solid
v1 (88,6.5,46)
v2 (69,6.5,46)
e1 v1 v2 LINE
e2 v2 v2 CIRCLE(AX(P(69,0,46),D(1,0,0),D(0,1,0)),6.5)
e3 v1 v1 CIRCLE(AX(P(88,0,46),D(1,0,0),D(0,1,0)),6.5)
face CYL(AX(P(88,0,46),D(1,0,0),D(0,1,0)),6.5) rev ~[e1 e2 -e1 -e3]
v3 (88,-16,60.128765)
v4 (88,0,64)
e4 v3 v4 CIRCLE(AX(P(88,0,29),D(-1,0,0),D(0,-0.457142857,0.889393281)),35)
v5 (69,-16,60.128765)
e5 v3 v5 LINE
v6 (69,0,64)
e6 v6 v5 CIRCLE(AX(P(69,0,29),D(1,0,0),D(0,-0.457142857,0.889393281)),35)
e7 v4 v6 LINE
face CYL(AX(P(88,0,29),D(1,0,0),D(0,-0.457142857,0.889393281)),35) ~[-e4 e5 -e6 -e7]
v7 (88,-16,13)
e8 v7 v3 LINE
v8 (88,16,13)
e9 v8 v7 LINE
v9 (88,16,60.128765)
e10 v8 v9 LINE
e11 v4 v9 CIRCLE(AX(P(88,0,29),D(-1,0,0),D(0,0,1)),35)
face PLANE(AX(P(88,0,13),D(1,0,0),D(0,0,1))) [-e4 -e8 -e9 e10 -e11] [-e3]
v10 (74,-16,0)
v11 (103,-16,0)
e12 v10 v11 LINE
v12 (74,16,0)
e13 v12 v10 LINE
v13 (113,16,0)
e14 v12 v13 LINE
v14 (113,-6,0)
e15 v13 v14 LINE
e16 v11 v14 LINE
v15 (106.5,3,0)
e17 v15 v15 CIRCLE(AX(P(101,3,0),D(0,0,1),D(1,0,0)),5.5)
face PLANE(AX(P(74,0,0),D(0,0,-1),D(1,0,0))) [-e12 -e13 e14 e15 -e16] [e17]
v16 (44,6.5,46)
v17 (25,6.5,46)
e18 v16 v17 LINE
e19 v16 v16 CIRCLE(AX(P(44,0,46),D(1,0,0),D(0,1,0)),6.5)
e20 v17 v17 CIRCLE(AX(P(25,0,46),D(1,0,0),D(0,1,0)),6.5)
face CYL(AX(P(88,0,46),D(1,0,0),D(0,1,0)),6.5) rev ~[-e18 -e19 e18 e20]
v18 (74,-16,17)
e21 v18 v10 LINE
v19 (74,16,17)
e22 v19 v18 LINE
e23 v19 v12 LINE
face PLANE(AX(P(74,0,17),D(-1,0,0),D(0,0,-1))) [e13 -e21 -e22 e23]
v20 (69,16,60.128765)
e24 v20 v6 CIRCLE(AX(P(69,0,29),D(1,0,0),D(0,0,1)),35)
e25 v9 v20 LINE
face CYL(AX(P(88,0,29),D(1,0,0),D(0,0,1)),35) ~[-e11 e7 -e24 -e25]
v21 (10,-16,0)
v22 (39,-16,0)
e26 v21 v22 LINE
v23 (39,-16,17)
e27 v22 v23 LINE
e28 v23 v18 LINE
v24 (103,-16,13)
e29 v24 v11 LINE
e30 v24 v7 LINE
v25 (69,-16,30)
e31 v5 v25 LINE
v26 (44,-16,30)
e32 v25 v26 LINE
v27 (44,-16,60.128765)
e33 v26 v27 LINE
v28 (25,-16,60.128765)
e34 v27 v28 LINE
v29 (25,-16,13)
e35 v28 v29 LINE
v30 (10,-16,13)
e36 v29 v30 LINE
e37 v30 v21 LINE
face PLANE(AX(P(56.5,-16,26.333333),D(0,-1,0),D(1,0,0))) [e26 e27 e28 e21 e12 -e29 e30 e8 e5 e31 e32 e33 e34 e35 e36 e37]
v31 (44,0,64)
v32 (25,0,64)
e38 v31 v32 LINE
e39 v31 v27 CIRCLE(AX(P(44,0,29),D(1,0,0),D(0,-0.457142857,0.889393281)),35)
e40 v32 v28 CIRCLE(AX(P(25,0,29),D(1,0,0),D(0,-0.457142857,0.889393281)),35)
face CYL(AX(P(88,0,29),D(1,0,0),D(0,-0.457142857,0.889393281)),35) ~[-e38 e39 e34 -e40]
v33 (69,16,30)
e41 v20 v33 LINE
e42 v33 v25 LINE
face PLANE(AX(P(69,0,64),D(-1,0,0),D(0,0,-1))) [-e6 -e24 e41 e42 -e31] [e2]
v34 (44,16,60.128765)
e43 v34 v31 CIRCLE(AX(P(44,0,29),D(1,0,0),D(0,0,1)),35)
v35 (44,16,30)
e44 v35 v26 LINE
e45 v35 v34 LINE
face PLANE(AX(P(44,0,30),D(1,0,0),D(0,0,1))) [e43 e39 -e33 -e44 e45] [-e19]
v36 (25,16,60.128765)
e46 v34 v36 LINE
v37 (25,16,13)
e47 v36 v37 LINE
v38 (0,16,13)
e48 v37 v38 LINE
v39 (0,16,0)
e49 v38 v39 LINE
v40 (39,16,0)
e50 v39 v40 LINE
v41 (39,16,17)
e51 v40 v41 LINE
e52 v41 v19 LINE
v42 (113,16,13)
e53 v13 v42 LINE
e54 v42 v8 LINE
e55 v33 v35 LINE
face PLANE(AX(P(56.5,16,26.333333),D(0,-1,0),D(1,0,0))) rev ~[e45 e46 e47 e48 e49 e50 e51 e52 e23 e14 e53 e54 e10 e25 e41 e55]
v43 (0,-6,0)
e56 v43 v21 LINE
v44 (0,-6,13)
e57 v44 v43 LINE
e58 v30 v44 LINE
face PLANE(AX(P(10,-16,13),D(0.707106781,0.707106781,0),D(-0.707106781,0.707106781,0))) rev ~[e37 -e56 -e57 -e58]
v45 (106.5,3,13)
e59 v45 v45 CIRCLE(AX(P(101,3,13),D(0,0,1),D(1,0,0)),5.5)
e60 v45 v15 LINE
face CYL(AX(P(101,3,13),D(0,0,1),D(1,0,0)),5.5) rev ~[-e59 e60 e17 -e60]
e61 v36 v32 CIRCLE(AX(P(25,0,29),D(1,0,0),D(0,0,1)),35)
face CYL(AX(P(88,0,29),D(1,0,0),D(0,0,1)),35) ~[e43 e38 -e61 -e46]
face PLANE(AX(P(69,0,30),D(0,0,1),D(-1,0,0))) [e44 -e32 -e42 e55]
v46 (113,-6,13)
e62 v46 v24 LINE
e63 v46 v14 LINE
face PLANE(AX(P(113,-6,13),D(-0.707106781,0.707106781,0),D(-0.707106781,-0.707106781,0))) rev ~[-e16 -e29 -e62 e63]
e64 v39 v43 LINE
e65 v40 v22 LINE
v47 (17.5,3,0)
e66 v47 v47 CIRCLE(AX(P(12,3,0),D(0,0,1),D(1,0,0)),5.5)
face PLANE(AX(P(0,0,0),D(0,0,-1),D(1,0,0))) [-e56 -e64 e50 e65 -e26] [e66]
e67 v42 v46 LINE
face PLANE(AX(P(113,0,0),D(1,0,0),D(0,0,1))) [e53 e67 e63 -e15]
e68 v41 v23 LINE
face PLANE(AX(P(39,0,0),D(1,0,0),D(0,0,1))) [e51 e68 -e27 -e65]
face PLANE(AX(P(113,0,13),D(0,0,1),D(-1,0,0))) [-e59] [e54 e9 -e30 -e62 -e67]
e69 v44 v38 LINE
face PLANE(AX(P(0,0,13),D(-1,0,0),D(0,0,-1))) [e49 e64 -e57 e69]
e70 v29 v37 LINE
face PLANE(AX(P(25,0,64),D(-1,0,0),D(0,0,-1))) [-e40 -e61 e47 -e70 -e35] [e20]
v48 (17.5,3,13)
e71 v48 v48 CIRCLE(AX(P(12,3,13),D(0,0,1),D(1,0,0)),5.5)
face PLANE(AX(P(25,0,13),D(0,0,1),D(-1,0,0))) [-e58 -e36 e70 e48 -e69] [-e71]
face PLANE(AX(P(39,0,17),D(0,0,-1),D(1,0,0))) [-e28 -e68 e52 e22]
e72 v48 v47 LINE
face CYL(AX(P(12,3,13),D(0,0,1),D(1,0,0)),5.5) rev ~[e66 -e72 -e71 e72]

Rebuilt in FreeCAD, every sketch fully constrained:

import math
import FreeCAD as App
import Part
import Sketcher
Q = App.Units.Quantity


def add_polygon(sketch, points):
    """Adds a closed chain of lines whose ends are joined by coincident constraints."""
    first, n = sketch.GeometryCount, len(points)
    for a, b in zip(points, points[1:] + points[:1]):
        sketch.addGeometry(Part.LineSegment(App.Vector(*a, 0), App.Vector(*b, 0)), False)
    for i in range(n):
        sketch.addConstraint(Sketcher.Constraint("Coincident", first + i, 2, first + (i + 1) % n, 1))

doc = App.newDocument("Part")
body = doc.addObject("PartDesign::Body", "Body")

# Sketch on XZ plane
sketch1 = body.newObject("Sketcher::SketchObject", "Sketch")
sketch1.AttachmentSupport = (doc.getObject("XZ_Plane"), [""])
sketch1.MapMode = "FlatFace"
add_polygon(sketch1, [(0, 13), (0, 0), (39, 0), (39, 17), (74, 17), (74, 0), (113, 0), (113, 13), (88, 13), (88, 64), (69, 64), (69, 30), (44, 30), (44, 64), (25, 64), (25, 13)])  # lines 0-15
sketch1.addConstraint(Sketcher.Constraint("Vertical", 0))
sketch1.addConstraint(Sketcher.Constraint("Horizontal", 1))
sketch1.addConstraint(Sketcher.Constraint("Vertical", 2))
sketch1.addConstraint(Sketcher.Constraint("Horizontal", 3))
sketch1.addConstraint(Sketcher.Constraint("Vertical", 4))
sketch1.addConstraint(Sketcher.Constraint("Horizontal", 5))
sketch1.addConstraint(Sketcher.Constraint("Vertical", 6))
sketch1.addConstraint(Sketcher.Constraint("Horizontal", 7))
sketch1.addConstraint(Sketcher.Constraint("Vertical", 8))
sketch1.addConstraint(Sketcher.Constraint("Horizontal", 9))
sketch1.addConstraint(Sketcher.Constraint("Vertical", 10))
sketch1.addConstraint(Sketcher.Constraint("Horizontal", 11))
sketch1.addConstraint(Sketcher.Constraint("Vertical", 12))
sketch1.addConstraint(Sketcher.Constraint("Horizontal", 13))
sketch1.addConstraint(Sketcher.Constraint("Vertical", 14))
sketch1.addConstraint(Sketcher.Constraint("Horizontal", 15))
sketch1.addConstraint(Sketcher.Constraint("Coincident", 0, 2, -1, 1))
sketch1.addConstraint(Sketcher.Constraint("PointOnObject", 4, 2, -1))
sketch1.addConstraint(Sketcher.Constraint("Horizontal", 9, 2, 12, 2))
sketch1.addConstraint(Sketcher.Constraint("Horizontal", 7, 2, 14, 2))
sketch1.addConstraint(Sketcher.Constraint("Equal", 1, 5))
sketch1.addConstraint(Sketcher.Constraint("Equal", 7, 11))
sketch1.addConstraint(Sketcher.Constraint("Equal", 9, 13))
sketch1.addConstraint(Sketcher.Constraint("Equal", 11, 15))
sketch1.addConstraint(Sketcher.Constraint("DistanceX", 1, 1, 1, 2, Q("39 mm")))
sketch1.addConstraint(Sketcher.Constraint("DistanceX", 3, 1, 3, 2, Q("35 mm")))
sketch1.addConstraint(Sketcher.Constraint("DistanceX", 7, 2, 7, 1, Q("25 mm")))
sketch1.addConstraint(Sketcher.Constraint("DistanceY", 0, 2, 0, 1, Q("13 mm")))
sketch1.addConstraint(Sketcher.Constraint("DistanceY", 2, 1, 2, 2, Q("17 mm")))
sketch1.addConstraint(Sketcher.Constraint("DistanceY", 8, 1, 8, 2, Q("51 mm")))
sketch1.addConstraint(Sketcher.Constraint("DistanceY", 10, 2, 10, 1, Q("34 mm")))
pad1 = body.newObject("PartDesign::Pad", "Pad")
pad1.Profile = sketch1
pad1.Length = 32
pad1.Midplane = True

# Sketch on XY plane
sketch2 = body.newObject("Sketcher::SketchObject", "Sketch001")
sketch2.AttachmentSupport = (doc.getObject("XY_Plane"), [""])
sketch2.MapMode = "FlatFace"
sketch2.AttachmentOffset = App.Placement(App.Vector(0, 0, 13), App.Rotation())
add_polygon(sketch2, [(103, -16), (113, -16), (113, -6)])  # lines 0-2
sketch2.addConstraint(Sketcher.Constraint("Horizontal", 0))
sketch2.addConstraint(Sketcher.Constraint("Vertical", 1))
sketch2.addConstraint(Sketcher.Constraint("Equal", 0, 1))
sketch2.addConstraint(Sketcher.Constraint("DistanceX", 0, 1, 0, 2, Q("10 mm")))
sketch2.addConstraint(Sketcher.Constraint("DistanceX", -1, 1, 0, 2, Q("113 mm")))
sketch2.addConstraint(Sketcher.Constraint("DistanceY", 0, 2, -1, 1, Q("16 mm")))
pocket1 = body.newObject("PartDesign::Pocket", "Pocket")
pocket1.Profile = sketch2
pocket1.Length = 25

# Sketch on XY plane
sketch3 = body.newObject("Sketcher::SketchObject", "Sketch002")
sketch3.AttachmentSupport = (doc.getObject("XY_Plane"), [""])
sketch3.MapMode = "FlatFace"
sketch3.AttachmentOffset = App.Placement(App.Vector(0, 0, 13), App.Rotation())
add_polygon(sketch3, [(10, -16), (0, -6), (0, -16)])  # lines 0-2
sketch3.addConstraint(Sketcher.Constraint("Vertical", 1))
sketch3.addConstraint(Sketcher.Constraint("Horizontal", 2))
sketch3.addConstraint(Sketcher.Constraint("PointOnObject", 0, 2, -2))
sketch3.addConstraint(Sketcher.Constraint("Equal", 2, 1))
sketch3.addConstraint(Sketcher.Constraint("DistanceX", 2, 1, 2, 2, Q("10 mm")))
sketch3.addConstraint(Sketcher.Constraint("DistanceY", 0, 2, -1, 1, Q("6 mm")))
pocket2 = body.newObject("PartDesign::Pocket", "Pocket001")
pocket2.Profile = sketch3
pocket2.Length = 25

# Sketch on YZ plane
sketch4 = body.newObject("Sketcher::SketchObject", "Sketch003")
sketch4.AttachmentSupport = (doc.getObject("YZ_Plane"), [""])
sketch4.MapMode = "FlatFace"
sketch4.AttachmentOffset = App.Placement(App.Vector(0, 0, 88), App.Rotation())
sketch4.addGeometry(Part.Circle(App.Vector(0, 46, 0), App.Vector(0, 0, 1), 6.5), False)
sketch4.addConstraint(Sketcher.Constraint("PointOnObject", 0, 3, -2))
sketch4.addConstraint(Sketcher.Constraint("Diameter", 0, Q("13 mm")))
sketch4.addConstraint(Sketcher.Constraint("DistanceY", -1, 1, 0, 3, Q("46 mm")))
pocket3 = body.newObject("PartDesign::Pocket", "Pocket002")
pocket3.Profile = sketch4
pocket3.Type = "ThroughAll"

# Sketch on YZ plane
sketch5 = body.newObject("Sketcher::SketchObject", "Sketch004")
sketch5.AttachmentSupport = (doc.getObject("YZ_Plane"), [""])
sketch5.MapMode = "FlatFace"
sketch5.AttachmentOffset = App.Placement(App.Vector(0, 0, 88), App.Rotation())
sketch5.addGeometry(Part.ArcOfCircle(Part.Circle(App.Vector(0, 29, 0), App.Vector(0, 0, 1), 35), math.radians(90), math.radians(117.202894)), False)
sketch5.addGeometry(Part.LineSegment(App.Vector(0, 64, 0), App.Vector(-16, 64, 0)), False)
sketch5.addGeometry(Part.LineSegment(App.Vector(-16, 64, 0), App.Vector(-16, 60.128765, 0)), False)
sketch5.addGeometry(Part.ArcOfCircle(Part.Circle(App.Vector(0, 29, 0), App.Vector(0, 0, 1), 35), math.radians(62.797106), math.radians(90)), False)
sketch5.addGeometry(Part.LineSegment(App.Vector(16, 60.128765, 0), App.Vector(16, 64, 0)), False)
sketch5.addGeometry(Part.LineSegment(App.Vector(16, 64, 0), App.Vector(0, 64, 0)), False)
sketch5.addConstraint(Sketcher.Constraint("Tangent", 0, 1, 1, 1))
sketch5.addConstraint(Sketcher.Constraint("Coincident", 1, 2, 2, 1))
sketch5.addConstraint(Sketcher.Constraint("Coincident", 2, 2, 0, 2))
sketch5.addConstraint(Sketcher.Constraint("Coincident", 3, 1, 4, 1))
sketch5.addConstraint(Sketcher.Constraint("Coincident", 4, 2, 5, 1))
sketch5.addConstraint(Sketcher.Constraint("Tangent", 5, 2, 3, 2))
sketch5.addConstraint(Sketcher.Constraint("Horizontal", 1))
sketch5.addConstraint(Sketcher.Constraint("Vertical", 2))
sketch5.addConstraint(Sketcher.Constraint("Vertical", 4))
sketch5.addConstraint(Sketcher.Constraint("Horizontal", 5))
sketch5.addConstraint(Sketcher.Constraint("Coincident", 3, 3, 0, 3))
sketch5.addConstraint(Sketcher.Constraint("Equal", 0, 3))
sketch5.addConstraint(Sketcher.Constraint("Symmetric", 2, 2, 3, 1, -2))
sketch5.addConstraint(Sketcher.Constraint("Radius", 0, Q("35 mm")))
sketch5.addConstraint(Sketcher.Constraint("DistanceX", 1, 2, 1, 1, Q("16 mm")))
sketch5.addConstraint(Sketcher.Constraint("DistanceY", -1, 1, 0, 3, Q("29 mm")))
pocket4 = body.newObject("PartDesign::Pocket", "Pocket003")
pocket4.Profile = sketch5
pocket4.Type = "ThroughAll"

# Sketch on XY plane
sketch6 = body.newObject("Sketcher::SketchObject", "Sketch005")
sketch6.AttachmentSupport = (doc.getObject("XY_Plane"), [""])
sketch6.MapMode = "FlatFace"
sketch6.AttachmentOffset = App.Placement(App.Vector(0, 0, 13), App.Rotation())
sketch6.addGeometry(Part.Circle(App.Vector(101, 3, 0), App.Vector(0, 0, 1), 5.5), False)
sketch6.addConstraint(Sketcher.Constraint("Diameter", 0, Q("11 mm")))
sketch6.addConstraint(Sketcher.Constraint("DistanceX", -1, 1, 0, 3, Q("101 mm")))
sketch6.addConstraint(Sketcher.Constraint("DistanceY", -1, 1, 0, 3, Q("3 mm")))
pocket5 = body.newObject("PartDesign::Pocket", "Pocket004")
pocket5.Profile = sketch6
pocket5.Length = 25

# Sketch on XY plane
sketch7 = body.newObject("Sketcher::SketchObject", "Sketch006")
sketch7.AttachmentSupport = (doc.getObject("XY_Plane"), [""])
sketch7.MapMode = "FlatFace"
sketch7.AttachmentOffset = App.Placement(App.Vector(0, 0, 13), App.Rotation())
sketch7.addGeometry(Part.Circle(App.Vector(12, 3, 0), App.Vector(0, 0, 1), 5.5), False)
sketch7.addConstraint(Sketcher.Constraint("Diameter", 0, Q("11 mm")))
sketch7.addConstraint(Sketcher.Constraint("DistanceX", -1, 1, 0, 3, Q("12 mm")))
sketch7.addConstraint(Sketcher.Constraint("DistanceY", -1, 1, 0, 3, Q("3 mm")))
pocket6 = body.newObject("PartDesign::Pocket", "Pocket005")
pocket6.Profile = sketch7
pocket6.Length = 25

doc.recompute()
